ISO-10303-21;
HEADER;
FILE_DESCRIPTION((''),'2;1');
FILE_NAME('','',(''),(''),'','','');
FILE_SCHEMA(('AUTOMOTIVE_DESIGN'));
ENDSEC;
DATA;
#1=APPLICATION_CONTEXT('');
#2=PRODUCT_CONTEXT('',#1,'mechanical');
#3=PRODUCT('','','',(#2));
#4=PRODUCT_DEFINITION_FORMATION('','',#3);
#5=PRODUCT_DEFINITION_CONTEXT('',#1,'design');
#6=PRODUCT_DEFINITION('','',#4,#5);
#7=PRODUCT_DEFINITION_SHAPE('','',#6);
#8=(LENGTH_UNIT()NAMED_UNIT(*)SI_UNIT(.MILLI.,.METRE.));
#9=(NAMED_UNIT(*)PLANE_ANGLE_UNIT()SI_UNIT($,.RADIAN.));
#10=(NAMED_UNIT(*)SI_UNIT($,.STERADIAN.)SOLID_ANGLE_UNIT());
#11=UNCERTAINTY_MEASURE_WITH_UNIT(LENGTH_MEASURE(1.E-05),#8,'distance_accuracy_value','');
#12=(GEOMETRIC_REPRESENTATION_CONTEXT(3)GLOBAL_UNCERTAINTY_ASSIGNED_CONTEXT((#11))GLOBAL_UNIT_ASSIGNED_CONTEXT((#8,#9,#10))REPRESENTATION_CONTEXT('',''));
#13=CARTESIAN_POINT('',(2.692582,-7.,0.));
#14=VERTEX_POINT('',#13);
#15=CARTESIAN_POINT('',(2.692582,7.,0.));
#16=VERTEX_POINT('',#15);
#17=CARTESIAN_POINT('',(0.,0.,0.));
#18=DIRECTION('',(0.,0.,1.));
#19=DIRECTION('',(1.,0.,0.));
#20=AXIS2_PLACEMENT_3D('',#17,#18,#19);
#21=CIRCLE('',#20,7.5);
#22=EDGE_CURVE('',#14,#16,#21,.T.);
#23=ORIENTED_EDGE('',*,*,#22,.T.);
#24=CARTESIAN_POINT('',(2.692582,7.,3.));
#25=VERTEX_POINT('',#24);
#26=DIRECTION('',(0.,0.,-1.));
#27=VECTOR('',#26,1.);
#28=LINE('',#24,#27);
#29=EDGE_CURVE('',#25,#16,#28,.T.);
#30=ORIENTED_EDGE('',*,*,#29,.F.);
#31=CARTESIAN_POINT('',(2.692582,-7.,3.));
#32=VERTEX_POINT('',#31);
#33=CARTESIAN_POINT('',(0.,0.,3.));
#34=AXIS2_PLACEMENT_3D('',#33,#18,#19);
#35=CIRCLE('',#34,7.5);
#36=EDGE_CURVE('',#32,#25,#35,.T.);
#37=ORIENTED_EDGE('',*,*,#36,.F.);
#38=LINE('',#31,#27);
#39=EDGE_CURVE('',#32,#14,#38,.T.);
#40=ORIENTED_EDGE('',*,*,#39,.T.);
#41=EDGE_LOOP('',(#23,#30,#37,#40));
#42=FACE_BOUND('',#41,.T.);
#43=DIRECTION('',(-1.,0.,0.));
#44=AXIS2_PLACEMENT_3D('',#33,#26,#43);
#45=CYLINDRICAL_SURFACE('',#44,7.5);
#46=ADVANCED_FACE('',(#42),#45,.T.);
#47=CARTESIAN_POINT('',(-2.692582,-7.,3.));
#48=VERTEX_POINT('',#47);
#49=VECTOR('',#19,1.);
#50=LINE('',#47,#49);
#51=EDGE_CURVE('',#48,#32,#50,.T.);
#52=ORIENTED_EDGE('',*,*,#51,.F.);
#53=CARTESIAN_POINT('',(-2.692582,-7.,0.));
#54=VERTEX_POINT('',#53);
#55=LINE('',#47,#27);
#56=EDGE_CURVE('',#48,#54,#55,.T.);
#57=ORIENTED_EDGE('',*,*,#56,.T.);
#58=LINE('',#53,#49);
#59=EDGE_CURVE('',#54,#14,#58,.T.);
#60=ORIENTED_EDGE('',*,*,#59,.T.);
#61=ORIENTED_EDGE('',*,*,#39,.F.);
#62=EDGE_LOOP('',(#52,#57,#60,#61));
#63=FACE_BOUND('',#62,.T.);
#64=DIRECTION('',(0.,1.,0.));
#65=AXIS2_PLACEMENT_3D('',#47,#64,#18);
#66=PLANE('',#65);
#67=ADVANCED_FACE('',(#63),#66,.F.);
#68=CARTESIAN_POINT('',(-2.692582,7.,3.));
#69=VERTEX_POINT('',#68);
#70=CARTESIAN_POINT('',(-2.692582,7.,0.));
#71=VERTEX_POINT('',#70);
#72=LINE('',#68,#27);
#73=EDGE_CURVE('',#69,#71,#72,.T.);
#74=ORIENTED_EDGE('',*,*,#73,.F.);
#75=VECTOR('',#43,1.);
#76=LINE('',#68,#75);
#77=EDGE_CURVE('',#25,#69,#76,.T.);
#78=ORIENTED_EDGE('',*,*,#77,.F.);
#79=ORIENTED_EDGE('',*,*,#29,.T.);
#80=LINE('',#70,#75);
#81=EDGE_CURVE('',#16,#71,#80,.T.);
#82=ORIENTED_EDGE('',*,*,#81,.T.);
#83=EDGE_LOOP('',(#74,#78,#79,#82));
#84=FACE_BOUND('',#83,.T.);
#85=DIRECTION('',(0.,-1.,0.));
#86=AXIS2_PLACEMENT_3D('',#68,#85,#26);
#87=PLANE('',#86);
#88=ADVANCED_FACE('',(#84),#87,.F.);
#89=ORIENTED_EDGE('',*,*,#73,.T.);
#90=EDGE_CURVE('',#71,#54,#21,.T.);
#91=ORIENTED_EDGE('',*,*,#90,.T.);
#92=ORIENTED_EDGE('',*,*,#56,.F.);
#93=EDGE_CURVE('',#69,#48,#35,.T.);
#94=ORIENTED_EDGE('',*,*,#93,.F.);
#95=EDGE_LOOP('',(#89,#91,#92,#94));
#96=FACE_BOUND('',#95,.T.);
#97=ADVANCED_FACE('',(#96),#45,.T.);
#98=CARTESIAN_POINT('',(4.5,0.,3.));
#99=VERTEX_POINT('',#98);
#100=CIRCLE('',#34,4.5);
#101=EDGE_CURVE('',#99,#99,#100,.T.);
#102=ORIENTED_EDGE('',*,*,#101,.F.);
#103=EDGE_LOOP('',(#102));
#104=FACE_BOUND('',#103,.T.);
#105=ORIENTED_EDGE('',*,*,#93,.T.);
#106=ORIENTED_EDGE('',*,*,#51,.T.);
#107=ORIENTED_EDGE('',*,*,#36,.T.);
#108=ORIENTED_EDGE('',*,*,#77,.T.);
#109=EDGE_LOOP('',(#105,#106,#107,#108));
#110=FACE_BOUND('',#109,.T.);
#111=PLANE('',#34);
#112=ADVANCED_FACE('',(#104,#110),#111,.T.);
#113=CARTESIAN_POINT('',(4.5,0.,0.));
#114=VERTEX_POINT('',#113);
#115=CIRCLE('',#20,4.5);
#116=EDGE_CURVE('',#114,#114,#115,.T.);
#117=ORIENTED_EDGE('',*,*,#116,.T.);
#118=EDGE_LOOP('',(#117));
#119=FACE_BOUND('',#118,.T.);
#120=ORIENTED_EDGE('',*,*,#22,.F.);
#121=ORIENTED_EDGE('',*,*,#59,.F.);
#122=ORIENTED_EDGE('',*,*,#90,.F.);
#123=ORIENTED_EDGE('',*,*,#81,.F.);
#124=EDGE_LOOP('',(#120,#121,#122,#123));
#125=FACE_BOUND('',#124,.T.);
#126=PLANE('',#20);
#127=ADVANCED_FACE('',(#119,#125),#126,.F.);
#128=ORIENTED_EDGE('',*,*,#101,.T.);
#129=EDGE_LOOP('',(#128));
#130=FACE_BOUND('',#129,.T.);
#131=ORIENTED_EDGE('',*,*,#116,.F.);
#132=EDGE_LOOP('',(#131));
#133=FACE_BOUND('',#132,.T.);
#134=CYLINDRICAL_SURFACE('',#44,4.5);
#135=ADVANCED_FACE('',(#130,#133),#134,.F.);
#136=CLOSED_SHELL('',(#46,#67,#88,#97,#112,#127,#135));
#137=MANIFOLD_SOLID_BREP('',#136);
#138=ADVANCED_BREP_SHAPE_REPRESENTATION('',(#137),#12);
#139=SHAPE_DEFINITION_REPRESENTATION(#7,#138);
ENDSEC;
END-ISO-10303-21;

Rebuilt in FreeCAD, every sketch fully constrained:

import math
import FreeCAD as App
import Part
import Sketcher

doc = App.newDocument("Part")
params = doc.addObject("Spreadsheet::Sheet", "Params")
for row, (alias, value) in enumerate([
    ("sketch1_diameter", "9 mm"),
    ("sketch1_radius", "7.5 mm"),
    ("pad1_length", "3 mm"),
], start=1):
    params.set(f"A{row}", alias)
    params.set(f"B{row}", "=" + value)
    params.setAlias(f"B{row}", alias)

body = doc.addObject("PartDesign::Body", "Body")

# Sketch on XY plane
sketch1 = body.newObject("Sketcher::SketchObject", "Sketch")
sketch1.AttachmentSupport = (doc.getObject("XY_Plane"), [""])
sketch1.MapMode = "FlatFace"
sketch1.addGeometry(Part.LineSegment(App.Vector(2.7, 7, 0), App.Vector(-2.7, 7, 0)), False)
sketch1.addGeometry(Part.ArcOfCircle(Part.Circle(App.Vector(0, 0, 0), App.Vector(0, 0, 1), 7.5), math.radians(111), math.radians(249)), False)
sketch1.addGeometry(Part.LineSegment(App.Vector(-2.7, -7, 0), App.Vector(2.7, -7, 0)), False)
sketch1.addGeometry(Part.ArcOfCircle(Part.Circle(App.Vector(0, 0, 0), App.Vector(0, 0, 1), 7.5), math.radians(-69), math.radians(69)), False)
sketch1.addGeometry(Part.Circle(App.Vector(0, 0, 0), App.Vector(0, 0, 1), 4.5), False)
sketch1.addConstraint(Sketcher.Constraint("Coincident", 0, 2, 1, 1))
sketch1.addConstraint(Sketcher.Constraint("Coincident", 1, 2, 2, 1))
sketch1.addConstraint(Sketcher.Constraint("Coincident", 2, 2, 3, 1))
sketch1.addConstraint(Sketcher.Constraint("Coincident", 3, 2, 0, 1))
sketch1.addConstraint(Sketcher.Constraint("Horizontal", 0))
sketch1.addConstraint(Sketcher.Constraint("Horizontal", 2))
sketch1.addConstraint(Sketcher.Constraint("Coincident", 1, 3, -1, 1))
sketch1.addConstraint(Sketcher.Constraint("Coincident", 3, 3, -1, 1))
sketch1.addConstraint(Sketcher.Constraint("Coincident", 4, 3, -1, 1))
sketch1.addConstraint(Sketcher.Constraint("Equal", 1, 3))
sketch1.addConstraint(Sketcher.Constraint("Vertical", 0, 2, 1, 2))
sketch1.addConstraint(Sketcher.Constraint("Diameter", 4, 9.0))
sketch1.addConstraint(Sketcher.Constraint("Radius", 1, 7.5))
sketch1.addConstraint(Sketcher.Constraint("DistanceY", -1, 1, 0, 2, 7.0))
sketch1.setExpression("Constraints[11]", "Params.sketch1_diameter")
sketch1.setExpression("Constraints[12]", "Params.sketch1_radius")
pad1 = body.newObject("PartDesign::Pad", "Pad")
pad1.Profile = sketch1
pad1.setExpression("Length", "Params.pad1_length")

doc.recompute()
